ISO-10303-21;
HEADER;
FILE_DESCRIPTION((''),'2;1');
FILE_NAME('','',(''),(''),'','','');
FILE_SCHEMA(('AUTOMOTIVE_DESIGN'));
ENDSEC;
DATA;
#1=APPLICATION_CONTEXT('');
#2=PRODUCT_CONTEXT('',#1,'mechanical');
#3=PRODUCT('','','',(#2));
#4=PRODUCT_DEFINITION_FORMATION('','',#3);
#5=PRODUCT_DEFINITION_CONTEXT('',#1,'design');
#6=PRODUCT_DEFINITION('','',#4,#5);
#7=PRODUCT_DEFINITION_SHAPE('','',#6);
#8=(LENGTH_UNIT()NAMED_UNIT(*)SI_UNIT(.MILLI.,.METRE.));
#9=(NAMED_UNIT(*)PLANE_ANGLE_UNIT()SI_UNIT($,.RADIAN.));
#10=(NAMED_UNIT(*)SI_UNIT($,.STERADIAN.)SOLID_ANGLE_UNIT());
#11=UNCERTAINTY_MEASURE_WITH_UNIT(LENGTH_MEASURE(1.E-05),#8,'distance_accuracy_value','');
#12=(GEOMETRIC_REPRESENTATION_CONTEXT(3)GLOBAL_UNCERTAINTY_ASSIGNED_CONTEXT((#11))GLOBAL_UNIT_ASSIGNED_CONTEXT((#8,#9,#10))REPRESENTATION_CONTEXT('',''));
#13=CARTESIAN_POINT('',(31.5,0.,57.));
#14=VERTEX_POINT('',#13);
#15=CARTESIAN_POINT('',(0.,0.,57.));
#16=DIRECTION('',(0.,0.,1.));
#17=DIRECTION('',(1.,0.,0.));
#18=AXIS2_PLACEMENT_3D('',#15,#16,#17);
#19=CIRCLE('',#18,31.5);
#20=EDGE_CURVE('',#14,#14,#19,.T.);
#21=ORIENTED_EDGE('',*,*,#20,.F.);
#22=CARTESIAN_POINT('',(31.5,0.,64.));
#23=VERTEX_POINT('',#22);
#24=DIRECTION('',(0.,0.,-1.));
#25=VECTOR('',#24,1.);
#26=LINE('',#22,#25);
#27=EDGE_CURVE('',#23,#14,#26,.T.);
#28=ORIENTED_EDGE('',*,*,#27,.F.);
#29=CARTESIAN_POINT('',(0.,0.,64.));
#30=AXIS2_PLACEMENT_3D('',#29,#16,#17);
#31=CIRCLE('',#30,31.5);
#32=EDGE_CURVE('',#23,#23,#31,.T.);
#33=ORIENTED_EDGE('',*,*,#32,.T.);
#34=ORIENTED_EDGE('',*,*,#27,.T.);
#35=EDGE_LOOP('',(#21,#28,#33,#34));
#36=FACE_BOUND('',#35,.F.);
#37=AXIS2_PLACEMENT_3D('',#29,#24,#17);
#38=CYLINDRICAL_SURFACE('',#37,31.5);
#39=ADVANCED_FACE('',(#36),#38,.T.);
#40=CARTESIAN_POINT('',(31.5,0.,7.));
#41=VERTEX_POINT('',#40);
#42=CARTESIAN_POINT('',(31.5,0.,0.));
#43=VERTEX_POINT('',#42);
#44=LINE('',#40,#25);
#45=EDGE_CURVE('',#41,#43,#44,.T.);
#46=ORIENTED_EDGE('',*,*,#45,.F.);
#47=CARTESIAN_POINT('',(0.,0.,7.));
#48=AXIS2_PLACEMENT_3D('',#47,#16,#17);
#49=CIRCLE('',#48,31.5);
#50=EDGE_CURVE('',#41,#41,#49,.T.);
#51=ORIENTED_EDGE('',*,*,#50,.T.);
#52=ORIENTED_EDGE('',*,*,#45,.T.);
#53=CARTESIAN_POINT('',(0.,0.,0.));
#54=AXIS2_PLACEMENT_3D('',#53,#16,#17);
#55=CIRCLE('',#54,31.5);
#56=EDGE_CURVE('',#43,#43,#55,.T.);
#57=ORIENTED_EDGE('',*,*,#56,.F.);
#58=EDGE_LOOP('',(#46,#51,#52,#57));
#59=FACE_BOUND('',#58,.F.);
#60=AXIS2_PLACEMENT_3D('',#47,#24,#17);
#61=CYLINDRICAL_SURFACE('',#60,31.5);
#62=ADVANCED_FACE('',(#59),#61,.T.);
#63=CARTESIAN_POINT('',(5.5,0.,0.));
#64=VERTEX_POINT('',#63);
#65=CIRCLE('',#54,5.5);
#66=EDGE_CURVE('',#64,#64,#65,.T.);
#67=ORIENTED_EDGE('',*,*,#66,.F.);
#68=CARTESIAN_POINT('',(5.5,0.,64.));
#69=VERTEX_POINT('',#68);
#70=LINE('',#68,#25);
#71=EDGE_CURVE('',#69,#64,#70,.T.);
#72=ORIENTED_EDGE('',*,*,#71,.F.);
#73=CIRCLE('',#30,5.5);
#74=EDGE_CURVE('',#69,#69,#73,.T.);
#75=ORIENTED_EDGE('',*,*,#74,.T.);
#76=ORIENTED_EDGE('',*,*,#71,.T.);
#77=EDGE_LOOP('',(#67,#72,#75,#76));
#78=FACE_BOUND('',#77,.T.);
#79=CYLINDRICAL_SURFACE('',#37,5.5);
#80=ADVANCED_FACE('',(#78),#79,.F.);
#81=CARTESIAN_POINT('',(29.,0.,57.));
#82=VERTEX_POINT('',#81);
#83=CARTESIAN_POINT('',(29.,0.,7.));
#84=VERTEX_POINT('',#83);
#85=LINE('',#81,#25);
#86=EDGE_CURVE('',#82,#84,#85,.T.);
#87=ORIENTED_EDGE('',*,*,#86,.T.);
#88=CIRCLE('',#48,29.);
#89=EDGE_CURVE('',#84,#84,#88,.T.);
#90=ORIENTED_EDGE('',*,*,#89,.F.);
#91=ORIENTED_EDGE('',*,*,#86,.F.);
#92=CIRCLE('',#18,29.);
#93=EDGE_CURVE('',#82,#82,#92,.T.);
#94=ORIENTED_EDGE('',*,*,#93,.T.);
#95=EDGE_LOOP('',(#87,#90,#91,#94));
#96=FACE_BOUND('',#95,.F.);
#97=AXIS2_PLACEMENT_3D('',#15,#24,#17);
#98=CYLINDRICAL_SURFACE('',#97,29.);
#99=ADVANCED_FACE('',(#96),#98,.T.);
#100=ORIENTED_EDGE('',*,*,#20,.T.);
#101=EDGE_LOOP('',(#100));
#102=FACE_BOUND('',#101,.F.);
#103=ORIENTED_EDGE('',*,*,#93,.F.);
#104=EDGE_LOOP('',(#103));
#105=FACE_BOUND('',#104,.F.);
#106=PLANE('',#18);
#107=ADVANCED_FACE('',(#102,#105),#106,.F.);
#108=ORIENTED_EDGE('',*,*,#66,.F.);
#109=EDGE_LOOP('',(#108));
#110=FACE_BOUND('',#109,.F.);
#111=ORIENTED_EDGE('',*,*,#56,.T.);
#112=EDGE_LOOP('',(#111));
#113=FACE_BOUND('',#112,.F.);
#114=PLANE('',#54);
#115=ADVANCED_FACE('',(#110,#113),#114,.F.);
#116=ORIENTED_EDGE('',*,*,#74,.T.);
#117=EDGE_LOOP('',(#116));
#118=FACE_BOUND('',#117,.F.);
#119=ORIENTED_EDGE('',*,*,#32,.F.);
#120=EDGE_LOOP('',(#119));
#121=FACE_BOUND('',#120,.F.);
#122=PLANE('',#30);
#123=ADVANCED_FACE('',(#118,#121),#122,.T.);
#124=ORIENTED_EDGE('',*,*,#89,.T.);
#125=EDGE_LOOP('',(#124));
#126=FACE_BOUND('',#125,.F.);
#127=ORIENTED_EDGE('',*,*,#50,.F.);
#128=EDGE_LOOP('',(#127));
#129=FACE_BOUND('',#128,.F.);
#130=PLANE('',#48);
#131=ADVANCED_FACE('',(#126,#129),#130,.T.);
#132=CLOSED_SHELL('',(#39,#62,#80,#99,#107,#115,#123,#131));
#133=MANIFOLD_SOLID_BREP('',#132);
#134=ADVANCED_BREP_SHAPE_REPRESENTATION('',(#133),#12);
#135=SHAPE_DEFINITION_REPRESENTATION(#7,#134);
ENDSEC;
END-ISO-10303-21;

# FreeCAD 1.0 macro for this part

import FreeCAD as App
import Part
import Sketcher


def add_polygon(sketch, points):
    """Adds a closed chain of lines whose ends are joined by coincident constraints."""
    first, n = sketch.GeometryCount, len(points)
    for a, b in zip(points, points[1:] + points[:1]):
        sketch.addGeometry(Part.LineSegment(App.Vector(*a, 0), App.Vector(*b, 0)), False)
    for i in range(n):
        sketch.addConstraint(Sketcher.Constraint("Coincident", first + i, 2, first + (i + 1) % n, 1))

doc = App.newDocument("Part")
params = doc.addObject("Spreadsheet::Sheet", "Params")
for row, (alias, value) in enumerate([
    ("sketch1_height", "64 mm"),
    ("sketch1_height2", "7 mm"),
    ("sketch1_width", "26 mm"),
    ("sketch1_width2", "2.5 mm"),
    ("revolution_angle", "360 deg"),
], start=1):
    params.set(f"A{row}", alias)
    params.set(f"B{row}", "=" + value)
    params.setAlias(f"B{row}", alias)

body = doc.addObject("PartDesign::Body", "Body")

sketch1 = body.newObject("Sketcher::SketchObject", "Sketch")
sketch1.AttachmentSupport = (doc.getObject("XZ_Plane"), [""])
sketch1.MapMode = "FlatFace"
add_polygon(sketch1, [(5.5, 0), (5.5, 64), (31.5, 64), (31.5, 57), (29, 57), (29, 7), (31.5, 7), (31.5, 0)])
sketch1.addConstraint([
    Sketcher.Constraint("Vertical", 0),
    Sketcher.Constraint("Horizontal", 1),
    Sketcher.Constraint("Vertical", 2),
    Sketcher.Constraint("Horizontal", 3),
    Sketcher.Constraint("Vertical", 4),
    Sketcher.Constraint("Horizontal", 5),
    Sketcher.Constraint("Vertical", 6),
    Sketcher.Constraint("Horizontal", 7),
    Sketcher.Constraint("PointOnObject", 6, 2, -1),
    Sketcher.Constraint("Vertical", 2, 2, 5, 2),
    Sketcher.Constraint("Equal", 2, 6),
    Sketcher.Constraint("DistanceY", 0, 1, 0, 2, 64.0),
    Sketcher.Constraint("DistanceY", 2, 2, 2, 1, 7.0),
    Sketcher.Constraint("DistanceX", 1, 1, 1, 2, 26.0),
    Sketcher.Constraint("DistanceX", 3, 2, 3, 1, 2.5),
    Sketcher.Constraint("DistanceX", -1, 1, 3, 2, 29.0),
])
sketch1.setExpression("Constraints[19]", "Params.sketch1_height")
sketch1.setExpression("Constraints[20]", "Params.sketch1_height2")
sketch1.setExpression("Constraints[21]", "Params.sketch1_width")
sketch1.setExpression("Constraints[22]", "Params.sketch1_width2")
revolution = body.newObject("PartDesign::Revolution", "Revolution")
revolution.Profile = sketch1
revolution.ReferenceAxis = (sketch1, ["V_Axis"])
revolution.setExpression("Angle", "Params.revolution_angle")

doc.recompute()
